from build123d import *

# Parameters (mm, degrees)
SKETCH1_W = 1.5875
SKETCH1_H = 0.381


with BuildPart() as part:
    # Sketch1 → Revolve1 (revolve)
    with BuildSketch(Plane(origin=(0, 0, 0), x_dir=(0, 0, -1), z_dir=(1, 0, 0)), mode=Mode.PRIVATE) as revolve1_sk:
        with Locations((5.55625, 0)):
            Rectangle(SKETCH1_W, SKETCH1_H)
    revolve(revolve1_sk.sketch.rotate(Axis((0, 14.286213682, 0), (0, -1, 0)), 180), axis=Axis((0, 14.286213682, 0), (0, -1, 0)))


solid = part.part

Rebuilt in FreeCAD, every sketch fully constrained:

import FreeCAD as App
import Part
import Sketcher
from FreeCAD import Vector
Q = App.Units.Quantity

doc = App.newDocument("Part")
body = doc.addObject("PartDesign::Body", "Body")

# Sketch on YZ plane
sketch1 = body.newObject("Sketcher::SketchObject", "Sketch")
sketch1.AttachmentSupport = (doc.getObject("YZ_Plane"), [""])
sketch1.MapMode = "FlatFace"
sketch1.addGeometry([
    Part.LineSegment(Vector(0.19, -4.76, 0), Vector(-0.19, -4.76, 0)),
    Part.LineSegment(Vector(-0.19, -4.76, 0), Vector(-0.19, -6.35, 0)),
    Part.LineSegment(Vector(-0.19, -6.35, 0), Vector(0.19, -6.35, 0)),
    Part.LineSegment(Vector(0.19, -6.35, 0), Vector(0.19, -4.76, 0)),
], False)
sketch1.addConstraint([
    Sketcher.Constraint("Coincident", 0, 2, 1, 1),
    Sketcher.Constraint("Coincident", 1, 2, 2, 1),
    Sketcher.Constraint("Coincident", 2, 2, 3, 1),
    Sketcher.Constraint("Coincident", 3, 2, 0, 1),
    Sketcher.Constraint("Horizontal", 0),
    Sketcher.Constraint("Vertical", 1),
    Sketcher.Constraint("Horizontal", 2),
    Sketcher.Constraint("Vertical", 3),
    Sketcher.Constraint("DistanceX", 0, 2, 0, 1, Q("0.015 in")),
    Sketcher.Constraint("DistanceY", 1, 2, 1, 1, Q("0.0625 in")),
    Sketcher.Constraint("DistanceY", 1, 2, -1, 1, Q("0.25 in")),
    Sketcher.Constraint("DistanceX", 0, 2, -1, 1, Q("0.0075 in")),
])
revolution = body.newObject("PartDesign::Revolution", "Revolution")
revolution.Profile = sketch1
revolution.ReferenceAxis = (sketch1, ["H_Axis"])
revolution.Angle = 360

doc.recompute()
